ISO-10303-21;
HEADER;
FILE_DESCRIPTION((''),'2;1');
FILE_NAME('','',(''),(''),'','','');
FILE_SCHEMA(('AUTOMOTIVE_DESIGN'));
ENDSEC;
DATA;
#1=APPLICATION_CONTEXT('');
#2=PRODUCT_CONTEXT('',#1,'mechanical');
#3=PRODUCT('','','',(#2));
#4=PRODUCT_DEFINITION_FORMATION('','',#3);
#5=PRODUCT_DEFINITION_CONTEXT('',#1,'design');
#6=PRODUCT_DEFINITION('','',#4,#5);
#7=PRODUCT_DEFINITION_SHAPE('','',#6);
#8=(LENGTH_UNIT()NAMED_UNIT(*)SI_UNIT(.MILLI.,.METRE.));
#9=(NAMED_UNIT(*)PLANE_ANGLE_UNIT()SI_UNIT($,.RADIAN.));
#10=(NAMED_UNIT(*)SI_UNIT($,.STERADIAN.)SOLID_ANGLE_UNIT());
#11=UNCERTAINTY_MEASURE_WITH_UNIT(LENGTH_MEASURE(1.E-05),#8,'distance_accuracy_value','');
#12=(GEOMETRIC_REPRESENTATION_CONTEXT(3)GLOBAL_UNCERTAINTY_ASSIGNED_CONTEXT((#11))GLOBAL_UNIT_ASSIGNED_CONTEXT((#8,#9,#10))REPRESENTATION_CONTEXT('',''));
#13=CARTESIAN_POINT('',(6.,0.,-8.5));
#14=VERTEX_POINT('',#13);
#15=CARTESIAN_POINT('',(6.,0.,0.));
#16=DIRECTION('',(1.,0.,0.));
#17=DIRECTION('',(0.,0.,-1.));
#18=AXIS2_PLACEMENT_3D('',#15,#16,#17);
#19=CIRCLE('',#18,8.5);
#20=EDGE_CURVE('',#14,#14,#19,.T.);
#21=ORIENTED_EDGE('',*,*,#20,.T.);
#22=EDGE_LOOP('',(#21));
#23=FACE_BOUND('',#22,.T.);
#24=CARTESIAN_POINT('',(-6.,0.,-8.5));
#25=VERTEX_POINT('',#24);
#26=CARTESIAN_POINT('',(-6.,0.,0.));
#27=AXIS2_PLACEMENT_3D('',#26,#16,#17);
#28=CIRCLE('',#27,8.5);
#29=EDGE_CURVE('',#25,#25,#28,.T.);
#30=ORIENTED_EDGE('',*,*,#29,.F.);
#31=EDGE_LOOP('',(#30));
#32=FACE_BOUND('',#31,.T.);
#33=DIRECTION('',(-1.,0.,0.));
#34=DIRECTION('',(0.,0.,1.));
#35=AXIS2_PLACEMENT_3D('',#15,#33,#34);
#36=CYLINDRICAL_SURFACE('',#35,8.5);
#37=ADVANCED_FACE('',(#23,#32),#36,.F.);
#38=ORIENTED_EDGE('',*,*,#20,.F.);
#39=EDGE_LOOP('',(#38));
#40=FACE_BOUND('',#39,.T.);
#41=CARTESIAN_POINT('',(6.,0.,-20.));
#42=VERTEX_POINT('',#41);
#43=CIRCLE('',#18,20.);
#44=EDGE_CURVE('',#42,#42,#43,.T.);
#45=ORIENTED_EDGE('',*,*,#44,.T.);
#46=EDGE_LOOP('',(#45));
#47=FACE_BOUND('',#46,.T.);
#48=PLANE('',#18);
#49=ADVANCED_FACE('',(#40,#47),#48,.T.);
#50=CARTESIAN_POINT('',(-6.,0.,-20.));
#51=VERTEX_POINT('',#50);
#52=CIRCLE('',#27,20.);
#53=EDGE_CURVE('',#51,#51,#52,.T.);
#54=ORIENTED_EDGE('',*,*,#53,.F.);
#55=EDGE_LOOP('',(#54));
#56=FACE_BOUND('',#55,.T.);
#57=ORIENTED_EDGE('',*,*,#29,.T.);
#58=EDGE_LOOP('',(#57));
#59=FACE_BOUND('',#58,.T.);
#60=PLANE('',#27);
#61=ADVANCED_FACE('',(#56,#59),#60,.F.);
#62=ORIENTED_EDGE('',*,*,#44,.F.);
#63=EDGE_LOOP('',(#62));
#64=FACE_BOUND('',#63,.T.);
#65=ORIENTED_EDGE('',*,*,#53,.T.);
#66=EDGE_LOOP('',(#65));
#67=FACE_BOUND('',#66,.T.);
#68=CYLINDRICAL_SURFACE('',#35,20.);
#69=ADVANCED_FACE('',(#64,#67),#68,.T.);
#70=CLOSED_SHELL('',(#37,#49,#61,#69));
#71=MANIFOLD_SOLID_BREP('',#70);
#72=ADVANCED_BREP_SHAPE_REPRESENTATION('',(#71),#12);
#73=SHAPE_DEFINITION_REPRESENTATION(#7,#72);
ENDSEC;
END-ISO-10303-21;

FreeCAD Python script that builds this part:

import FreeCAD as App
import Part
import Sketcher
from FreeCAD import Vector
Q = App.Units.Quantity

doc = App.newDocument("Part")
body = doc.addObject("PartDesign::Body", "Body")

sketch1 = body.newObject("Sketcher::SketchObject", "Sketch")
sketch1.AttachmentSupport = (doc.getObject("YZ_Plane"), [""])
sketch1.MapMode = "FlatFace"
sketch1.addGeometry([
    Part.Circle(Vector(0, 0, 0), Vector(0, 0, 1), 20),
    Part.Circle(Vector(0, 0, 0), Vector(0, 0, 1), 8.5),
], False)
sketch1.addConstraint([
    Sketcher.Constraint("Coincident", 0, 3, -1, 1),
    Sketcher.Constraint("Coincident", 1, 3, -1, 1),
    Sketcher.Constraint("Diameter", 0, Q("40 mm")),
    Sketcher.Constraint("Diameter", 1, Q("17 mm")),
])
pad1 = body.newObject("PartDesign::Pad", "Pad")
pad1.Profile = sketch1
pad1.Length = 12
pad1.Midplane = True

doc.recompute()
